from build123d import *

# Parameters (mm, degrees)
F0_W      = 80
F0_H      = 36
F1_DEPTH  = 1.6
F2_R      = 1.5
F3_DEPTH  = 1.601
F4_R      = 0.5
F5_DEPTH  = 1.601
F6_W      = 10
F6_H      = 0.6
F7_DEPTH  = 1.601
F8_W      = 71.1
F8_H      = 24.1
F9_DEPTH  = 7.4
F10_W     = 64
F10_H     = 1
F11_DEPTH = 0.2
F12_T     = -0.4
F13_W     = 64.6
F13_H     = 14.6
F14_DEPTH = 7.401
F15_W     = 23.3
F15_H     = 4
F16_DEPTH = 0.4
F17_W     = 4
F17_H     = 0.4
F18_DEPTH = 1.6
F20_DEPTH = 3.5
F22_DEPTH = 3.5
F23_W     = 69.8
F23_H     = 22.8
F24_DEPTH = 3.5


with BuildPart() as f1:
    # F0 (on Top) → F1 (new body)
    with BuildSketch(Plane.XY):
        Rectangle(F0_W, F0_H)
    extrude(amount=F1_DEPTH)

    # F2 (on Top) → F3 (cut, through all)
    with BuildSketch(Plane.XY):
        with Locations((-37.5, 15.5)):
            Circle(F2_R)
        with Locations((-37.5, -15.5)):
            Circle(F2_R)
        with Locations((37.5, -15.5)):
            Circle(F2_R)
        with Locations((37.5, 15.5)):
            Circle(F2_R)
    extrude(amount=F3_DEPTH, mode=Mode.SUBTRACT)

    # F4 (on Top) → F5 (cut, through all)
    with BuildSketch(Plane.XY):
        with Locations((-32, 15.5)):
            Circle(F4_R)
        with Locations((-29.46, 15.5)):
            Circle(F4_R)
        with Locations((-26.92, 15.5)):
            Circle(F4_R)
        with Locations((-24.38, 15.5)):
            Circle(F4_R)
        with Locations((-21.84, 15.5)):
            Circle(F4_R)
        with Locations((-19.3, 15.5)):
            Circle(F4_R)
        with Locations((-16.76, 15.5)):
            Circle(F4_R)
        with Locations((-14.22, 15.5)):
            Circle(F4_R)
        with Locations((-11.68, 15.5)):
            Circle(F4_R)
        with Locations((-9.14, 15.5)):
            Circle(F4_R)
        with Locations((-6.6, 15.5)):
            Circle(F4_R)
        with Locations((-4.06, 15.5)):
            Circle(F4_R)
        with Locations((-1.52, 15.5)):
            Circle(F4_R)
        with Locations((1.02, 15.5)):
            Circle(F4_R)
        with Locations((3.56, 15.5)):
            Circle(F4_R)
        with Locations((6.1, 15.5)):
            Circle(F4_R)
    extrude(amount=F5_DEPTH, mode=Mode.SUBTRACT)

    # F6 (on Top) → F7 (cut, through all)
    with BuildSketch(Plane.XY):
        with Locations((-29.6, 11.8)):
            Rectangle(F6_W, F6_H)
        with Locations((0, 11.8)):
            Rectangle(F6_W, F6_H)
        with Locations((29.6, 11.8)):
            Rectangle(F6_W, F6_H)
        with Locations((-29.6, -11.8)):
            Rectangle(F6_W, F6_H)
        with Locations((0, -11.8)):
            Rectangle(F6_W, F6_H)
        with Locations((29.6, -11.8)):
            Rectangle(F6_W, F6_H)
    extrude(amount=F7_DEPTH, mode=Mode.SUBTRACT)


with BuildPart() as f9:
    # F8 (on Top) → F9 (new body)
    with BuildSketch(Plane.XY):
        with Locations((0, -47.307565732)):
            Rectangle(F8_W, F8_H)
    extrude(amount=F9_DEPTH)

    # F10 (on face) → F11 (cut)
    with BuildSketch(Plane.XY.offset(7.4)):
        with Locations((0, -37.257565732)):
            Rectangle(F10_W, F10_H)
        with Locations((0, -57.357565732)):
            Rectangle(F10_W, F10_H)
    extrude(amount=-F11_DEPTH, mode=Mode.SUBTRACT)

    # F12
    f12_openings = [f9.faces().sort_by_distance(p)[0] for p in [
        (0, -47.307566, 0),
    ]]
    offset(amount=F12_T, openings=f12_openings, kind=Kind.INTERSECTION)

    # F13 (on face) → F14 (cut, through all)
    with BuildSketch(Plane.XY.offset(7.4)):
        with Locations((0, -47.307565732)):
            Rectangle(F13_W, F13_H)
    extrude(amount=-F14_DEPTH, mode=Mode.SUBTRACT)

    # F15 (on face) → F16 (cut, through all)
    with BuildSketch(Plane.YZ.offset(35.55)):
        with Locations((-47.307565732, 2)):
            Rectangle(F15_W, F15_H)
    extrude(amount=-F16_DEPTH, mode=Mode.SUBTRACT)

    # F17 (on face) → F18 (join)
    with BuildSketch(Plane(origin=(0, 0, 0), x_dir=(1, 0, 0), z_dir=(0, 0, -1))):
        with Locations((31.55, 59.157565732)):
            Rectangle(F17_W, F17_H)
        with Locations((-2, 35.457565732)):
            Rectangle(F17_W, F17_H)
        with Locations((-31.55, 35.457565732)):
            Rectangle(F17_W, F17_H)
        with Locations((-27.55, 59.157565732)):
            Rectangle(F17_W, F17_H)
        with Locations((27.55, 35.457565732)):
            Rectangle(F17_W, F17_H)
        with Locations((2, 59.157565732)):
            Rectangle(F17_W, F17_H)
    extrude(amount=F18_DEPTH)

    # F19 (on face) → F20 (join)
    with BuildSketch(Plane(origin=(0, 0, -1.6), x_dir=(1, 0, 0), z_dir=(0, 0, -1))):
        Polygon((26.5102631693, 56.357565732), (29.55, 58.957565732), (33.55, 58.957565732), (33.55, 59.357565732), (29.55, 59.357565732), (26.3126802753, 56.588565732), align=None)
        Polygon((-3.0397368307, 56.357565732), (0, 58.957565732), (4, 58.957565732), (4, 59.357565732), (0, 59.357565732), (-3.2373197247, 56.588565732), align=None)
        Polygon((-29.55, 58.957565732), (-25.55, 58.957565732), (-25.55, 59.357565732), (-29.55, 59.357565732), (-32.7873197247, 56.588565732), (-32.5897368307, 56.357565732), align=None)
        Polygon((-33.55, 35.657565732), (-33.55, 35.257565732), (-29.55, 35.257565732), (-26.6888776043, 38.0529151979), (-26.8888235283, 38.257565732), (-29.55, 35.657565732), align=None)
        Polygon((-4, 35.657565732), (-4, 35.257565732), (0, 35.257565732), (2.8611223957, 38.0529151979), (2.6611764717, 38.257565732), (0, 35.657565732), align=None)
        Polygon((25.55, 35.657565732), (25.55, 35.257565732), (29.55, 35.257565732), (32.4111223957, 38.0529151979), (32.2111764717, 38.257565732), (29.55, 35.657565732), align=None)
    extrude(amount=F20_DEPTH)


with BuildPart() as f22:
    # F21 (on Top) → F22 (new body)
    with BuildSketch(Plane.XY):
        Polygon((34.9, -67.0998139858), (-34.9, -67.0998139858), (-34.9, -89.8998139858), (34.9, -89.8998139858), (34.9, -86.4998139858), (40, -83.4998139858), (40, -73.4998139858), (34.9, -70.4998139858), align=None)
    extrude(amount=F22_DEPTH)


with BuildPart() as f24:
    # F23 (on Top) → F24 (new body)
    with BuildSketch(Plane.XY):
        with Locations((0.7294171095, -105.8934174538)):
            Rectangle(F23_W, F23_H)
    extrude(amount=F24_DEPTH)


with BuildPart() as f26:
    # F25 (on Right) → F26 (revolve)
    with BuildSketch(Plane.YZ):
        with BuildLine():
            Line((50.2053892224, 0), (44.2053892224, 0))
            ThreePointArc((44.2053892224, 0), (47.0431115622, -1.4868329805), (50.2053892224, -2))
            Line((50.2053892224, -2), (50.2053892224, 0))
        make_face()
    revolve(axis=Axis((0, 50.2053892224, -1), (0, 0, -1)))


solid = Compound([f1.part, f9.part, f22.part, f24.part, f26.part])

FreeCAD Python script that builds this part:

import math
import FreeCAD as App
import Part
import Sketcher
from FreeCAD import Vector


def faces_at(feature, points):
    """Names of the faces that lie closest to the given points."""
    faces = feature.Shape.Faces
    near = lambda p: min(range(len(faces)), key=lambda i: faces[i].distToShape(Part.Vertex(*p))[0])
    return sorted({f"Face{near(p) + 1}" for p in points})

doc = App.newDocument("Part")
body = doc.addObject("PartDesign::Body", "Body")

# Sketch on XY plane
sketch1 = doc.addObject("Sketcher::SketchObject", "Sketch")
body.addObject(sketch1)
sketch1.AttachmentSupport = (doc.XY_Plane, [""])
sketch1.MapMode = "FlatFace"
sketch1.addGeometry([
    Part.LineSegment(Vector(-40, 18, 0), Vector(-40, -18, 0)),
    Part.LineSegment(Vector(-40, -18, 0), Vector(40, -18, 0)),
    Part.LineSegment(Vector(40, -18, 0), Vector(40, 18, 0)),
    Part.LineSegment(Vector(40, 18, 0), Vector(-40, 18, 0)),
], False)
sketch1.addConstraint([
    Sketcher.Constraint("Coincident", 0, 2, 1, 1),
    Sketcher.Constraint("Coincident", 1, 2, 2, 1),
    Sketcher.Constraint("Coincident", 2, 2, 3, 1),
    Sketcher.Constraint("Coincident", 3, 2, 0, 1),
    Sketcher.Constraint("Vertical", 0),
    Sketcher.Constraint("Horizontal", 1),
    Sketcher.Constraint("Vertical", 2),
    Sketcher.Constraint("Horizontal", 3),
    Sketcher.Constraint("Symmetric", 0, 2, 2, 2, -1, 1),
    Sketcher.Constraint("DistanceX", 1, 1, 1, 2, 80.0),
    Sketcher.Constraint("DistanceY", 0, 2, 0, 1, 36.0),
])
pad1 = doc.addObject("PartDesign::Pad", "Pad")
body.addObject(pad1)
pad1.Profile = sketch1
pad1.Length = 1.6

# Sketch on XY plane
sketch2 = doc.addObject("Sketcher::SketchObject", "Sketch001")
body.addObject(sketch2)
sketch2.AttachmentSupport = (doc.XY_Plane, [""])
sketch2.MapMode = "FlatFace"
sketch2.addGeometry([
    Part.Circle(Vector(-37.5, 15.5, 0), Vector(0, 0, 1), 1.5),
    Part.Circle(Vector(-37.5, -15.5, 0), Vector(0, 0, 1), 1.5),
    Part.Circle(Vector(37.5, -15.5, 0), Vector(0, 0, 1), 1.5),
    Part.Circle(Vector(37.5, 15.5, 0), Vector(0, 0, 1), 1.5),
], False)
sketch2.addConstraint([
    Sketcher.Constraint("Equal", 0, 1),
    Sketcher.Constraint("Equal", 1, 2),
    Sketcher.Constraint("Equal", 2, 3),
    Sketcher.Constraint("Symmetric", 0, 3, 2, 3, -1, 1),
    Sketcher.Constraint("Symmetric", 1, 3, 3, 3, -1, 1),
    Sketcher.Constraint("Symmetric", 1, 3, 2, 3, -2),
    Sketcher.Constraint("Diameter", 0, 3.0),
    Sketcher.Constraint("DistanceY", 1, 3, 0, 3, 31.0),
    Sketcher.Constraint("DistanceX", 1, 3, 2, 3, 75.0),
])
pocket1 = doc.addObject("PartDesign::Pocket", "Pocket")
body.addObject(pocket1)
pocket1.Profile = sketch2
pocket1.Type = "ThroughAll"
pocket1.Reversed = True

# Sketch on XY plane
sketch3 = doc.addObject("Sketcher::SketchObject", "Sketch002")
body.addObject(sketch3)
sketch3.AttachmentSupport = (doc.XY_Plane, [""])
sketch3.MapMode = "FlatFace"
sketch3.addGeometry([
    Part.Circle(Vector(-32, 15.5, 0), Vector(0, 0, 1), 0.5),  # 0
    Part.Circle(Vector(-29.46, 15.5, 0), Vector(0, 0, 1), 0.5),  # 1
    Part.Circle(Vector(-26.92, 15.5, 0), Vector(0, 0, 1), 0.5),  # 2
    Part.Circle(Vector(-24.38, 15.5, 0), Vector(0, 0, 1), 0.5),  # 3
    Part.Circle(Vector(-21.84, 15.5, 0), Vector(0, 0, 1), 0.5),  # 4
    Part.Circle(Vector(-19.3, 15.5, 0), Vector(0, 0, 1), 0.5),  # 5
    Part.Circle(Vector(-16.76, 15.5, 0), Vector(0, 0, 1), 0.5),  # 6
    Part.Circle(Vector(-14.22, 15.5, 0), Vector(0, 0, 1), 0.5),  # 7
    Part.Circle(Vector(-11.68, 15.5, 0), Vector(0, 0, 1), 0.5),  # 8
    Part.Circle(Vector(-9.14, 15.5, 0), Vector(0, 0, 1), 0.5),  # 9
    Part.Circle(Vector(-6.6, 15.5, 0), Vector(0, 0, 1), 0.5),  # 10
    Part.Circle(Vector(-4.06, 15.5, 0), Vector(0, 0, 1), 0.5),  # 11
    Part.Circle(Vector(-1.52, 15.5, 0), Vector(0, 0, 1), 0.5),  # 12
    Part.Circle(Vector(1.02, 15.5, 0), Vector(0, 0, 1), 0.5),  # 13
    Part.Circle(Vector(3.56, 15.5, 0), Vector(0, 0, 1), 0.5),  # 14
    Part.Circle(Vector(6.1, 15.5, 0), Vector(0, 0, 1), 0.5),  # 15
], False)
sketch3.addConstraint([
    Sketcher.Constraint("Equal", 0, 1),
    Sketcher.Constraint("Equal", 1, 2),
    Sketcher.Constraint("Equal", 2, 3),
    Sketcher.Constraint("Equal", 3, 4),
    Sketcher.Constraint("Equal", 4, 5),
    Sketcher.Constraint("Equal", 5, 6),
    Sketcher.Constraint("Equal", 6, 7),
    Sketcher.Constraint("Equal", 7, 8),
    Sketcher.Constraint("Equal", 8, 9),
    Sketcher.Constraint("Equal", 9, 10),
    Sketcher.Constraint("Equal", 10, 11),
    Sketcher.Constraint("Equal", 11, 12),
    Sketcher.Constraint("Equal", 12, 13),
    Sketcher.Constraint("Equal", 13, 14),
    Sketcher.Constraint("Equal", 14, 15),
    Sketcher.Constraint("Horizontal", 0, 3, 1, 3),
    Sketcher.Constraint("Horizontal", 1, 3, 2, 3),
    Sketcher.Constraint("Horizontal", 2, 3, 3, 3),
    Sketcher.Constraint("Horizontal", 3, 3, 4, 3),
    Sketcher.Constraint("Horizontal", 4, 3, 5, 3),
    Sketcher.Constraint("Horizontal", 5, 3, 6, 3),
    Sketcher.Constraint("Horizontal", 6, 3, 7, 3),
    Sketcher.Constraint("Horizontal", 7, 3, 8, 3),
    Sketcher.Constraint("Horizontal", 8, 3, 9, 3),
    Sketcher.Constraint("Horizontal", 9, 3, 10, 3),
    Sketcher.Constraint("Horizontal", 10, 3, 11, 3),
    Sketcher.Constraint("Horizontal", 11, 3, 12, 3),
    Sketcher.Constraint("Horizontal", 12, 3, 13, 3),
    Sketcher.Constraint("Horizontal", 13, 3, 14, 3),
    Sketcher.Constraint("Horizontal", 14, 3, 15, 3),
    Sketcher.Constraint("Diameter", 0, 1.0),
    Sketcher.Constraint("DistanceX", 0, 3, -1, 1, 32.0),
    Sketcher.Constraint("DistanceY", -1, 1, 0, 3, 15.5),
    Sketcher.Constraint("DistanceX", 5, 3, -1, 1, 19.3),
    Sketcher.Constraint("DistanceX", 10, 3, -1, 1, 6.6),
    Sketcher.Constraint("DistanceX", -1, 1, 15, 3, 6.1),
    Sketcher.Constraint("DistanceX", 1, 3, 6, 3, 12.7),
    Sketcher.Constraint("DistanceX", 2, 3, 7, 3, 12.7),
    Sketcher.Constraint("DistanceX", 3, 3, 8, 3, 12.7),
    Sketcher.Constraint("DistanceX", 4, 3, 9, 3, 12.7),
    Sketcher.Constraint("DistanceX", 6, 3, 11, 3, 12.7),
    Sketcher.Constraint("DistanceX", 7, 3, 12, 3, 12.7),
    Sketcher.Constraint("DistanceX", 8, 3, 13, 3, 12.7),
    Sketcher.Constraint("DistanceX", 9, 3, 14, 3, 12.7),
    Sketcher.Constraint("DistanceX", 1, 3, -1, 1, 29.46),
    Sketcher.Constraint("DistanceX", 2, 3, -1, 1, 26.92),
    Sketcher.Constraint("DistanceX", 3, 3, -1, 1, 24.38),
    Sketcher.Constraint("DistanceX", 4, 3, -1, 1, 21.84),
])
pocket2 = doc.addObject("PartDesign::Pocket", "Pocket001")
body.addObject(pocket2)
pocket2.Profile = sketch3
pocket2.Type = "ThroughAll"
pocket2.Reversed = True

# Sketch on XY plane
sketch4 = doc.addObject("Sketcher::SketchObject", "Sketch003")
body.addObject(sketch4)
sketch4.AttachmentSupport = (doc.XY_Plane, [""])
sketch4.MapMode = "FlatFace"
sketch4.addGeometry([
    Part.LineSegment(Vector(-34.6, 12.1, 0), Vector(-34.6, 11.5, 0)),  # 0
    Part.LineSegment(Vector(-34.6, 11.5, 0), Vector(-24.6, 11.5, 0)),  # 1
    Part.LineSegment(Vector(-24.6, 11.5, 0), Vector(-24.6, 12.1, 0)),  # 2
    Part.LineSegment(Vector(-24.6, 12.1, 0), Vector(-34.6, 12.1, 0)),  # 3
    Part.LineSegment(Vector(-5, 12.1, 0), Vector(-5, 11.5, 0)),  # 4
    Part.LineSegment(Vector(-5, 11.5, 0), Vector(5, 11.5, 0)),  # 5
    Part.LineSegment(Vector(5, 11.5, 0), Vector(5, 12.1, 0)),  # 6
    Part.LineSegment(Vector(5, 12.1, 0), Vector(-5, 12.1, 0)),  # 7
    Part.LineSegment(Vector(24.6, 12.1, 0), Vector(24.6, 11.5, 0)),  # 8
    Part.LineSegment(Vector(24.6, 11.5, 0), Vector(34.6, 11.5, 0)),  # 9
    Part.LineSegment(Vector(34.6, 11.5, 0), Vector(34.6, 12.1, 0)),  # 10
    Part.LineSegment(Vector(34.6, 12.1, 0), Vector(24.6, 12.1, 0)),  # 11
    Part.LineSegment(Vector(-34.6, -11.5, 0), Vector(-34.6, -12.1, 0)),  # 12
    Part.LineSegment(Vector(-34.6, -12.1, 0), Vector(-24.6, -12.1, 0)),  # 13
    Part.LineSegment(Vector(-24.6, -12.1, 0), Vector(-24.6, -11.5, 0)),  # 14
    Part.LineSegment(Vector(-24.6, -11.5, 0), Vector(-34.6, -11.5, 0)),  # 15
    Part.LineSegment(Vector(-5, -11.5, 0), Vector(-5, -12.1, 0)),  # 16
    Part.LineSegment(Vector(-5, -12.1, 0), Vector(5, -12.1, 0)),  # 17
    Part.LineSegment(Vector(5, -12.1, 0), Vector(5, -11.5, 0)),  # 18
    Part.LineSegment(Vector(5, -11.5, 0), Vector(-5, -11.5, 0)),  # 19
    Part.LineSegment(Vector(24.6, -11.5, 0), Vector(24.6, -12.1, 0)),  # 20
    Part.LineSegment(Vector(24.6, -12.1, 0), Vector(34.6, -12.1, 0)),  # 21
    Part.LineSegment(Vector(34.6, -12.1, 0), Vector(34.6, -11.5, 0)),  # 22
    Part.LineSegment(Vector(34.6, -11.5, 0), Vector(24.6, -11.5, 0)),  # 23
], False)
sketch4.addConstraint([
    Sketcher.Constraint("Coincident", 0, 2, 1, 1),
    Sketcher.Constraint("Coincident", 1, 2, 2, 1),
    Sketcher.Constraint("Coincident", 2, 2, 3, 1),
    Sketcher.Constraint("Coincident", 3, 2, 0, 1),
    Sketcher.Constraint("Coincident", 4, 2, 5, 1),
    Sketcher.Constraint("Coincident", 5, 2, 6, 1),
    Sketcher.Constraint("Coincident", 6, 2, 7, 1),
    Sketcher.Constraint("Coincident", 7, 2, 4, 1),
    Sketcher.Constraint("Coincident", 8, 2, 9, 1),
    Sketcher.Constraint("Coincident", 9, 2, 10, 1),
    Sketcher.Constraint("Coincident", 10, 2, 11, 1),
    Sketcher.Constraint("Coincident", 11, 2, 8, 1),
    Sketcher.Constraint("Coincident", 12, 2, 13, 1),
    Sketcher.Constraint("Coincident", 13, 2, 14, 1),
    Sketcher.Constraint("Coincident", 14, 2, 15, 1),
    Sketcher.Constraint("Coincident", 15, 2, 12, 1),
    Sketcher.Constraint("Coincident", 16, 2, 17, 1),
    Sketcher.Constraint("Coincident", 17, 2, 18, 1),
    Sketcher.Constraint("Coincident", 18, 2, 19, 1),
    Sketcher.Constraint("Coincident", 19, 2, 16, 1),
    Sketcher.Constraint("Coincident", 20, 2, 21, 1),
    Sketcher.Constraint("Coincident", 21, 2, 22, 1),
    Sketcher.Constraint("Coincident", 22, 2, 23, 1),
    Sketcher.Constraint("Coincident", 23, 2, 20, 1),
    Sketcher.Constraint("Vertical", 0),
    Sketcher.Constraint("Horizontal", 1),
    Sketcher.Constraint("Vertical", 2),
    Sketcher.Constraint("Horizontal", 3),
    Sketcher.Constraint("Vertical", 4),
    Sketcher.Constraint("Horizontal", 5),
    Sketcher.Constraint("Vertical", 6),
    Sketcher.Constraint("Horizontal", 7),
    Sketcher.Constraint("Vertical", 8),
    Sketcher.Constraint("Horizontal", 9),
    Sketcher.Constraint("Vertical", 10),
    Sketcher.Constraint("Horizontal", 11),
    Sketcher.Constraint("Vertical", 12),
    Sketcher.Constraint("Horizontal", 13),
    Sketcher.Constraint("Vertical", 14),
    Sketcher.Constraint("Horizontal", 15),
    Sketcher.Constraint("Vertical", 16),
    Sketcher.Constraint("Horizontal", 17),
    Sketcher.Constraint("Vertical", 18),
    Sketcher.Constraint("Horizontal", 19),
    Sketcher.Constraint("Vertical", 20),
    Sketcher.Constraint("Horizontal", 21),
    Sketcher.Constraint("Vertical", 22),
    Sketcher.Constraint("Horizontal", 23),
    Sketcher.Constraint("Symmetric", 10, 2, 12, 2, -1, 1),
    Sketcher.Constraint("Symmetric", 8, 2, 14, 2, -1, 1),
    Sketcher.Constraint("Symmetric", 6, 2, 16, 2, -1, 1),
    Sketcher.Constraint("Symmetric", 4, 2, 18, 2, -1, 1),
    Sketcher.Constraint("Symmetric", 2, 2, 20, 2, -1, 1),
    Sketcher.Constraint("Symmetric", 0, 2, 22, 2, -1, 1),
    Sketcher.Constraint("Symmetric", 1, 2, 8, 2, -2),
    Sketcher.Constraint("Symmetric", 3, 2, 10, 2, -2),
    Sketcher.Constraint("Horizontal", 1, 2, 4, 2),
    Sketcher.Constraint("Horizontal", 3, 2, 6, 2),
    Sketcher.Constraint("Vertical", 7, 2, 16, 2),
    Sketcher.Constraint("Equal", 3, 5),
    Sketcher.Constraint("DistanceX", 1, 1, 1, 2, 10.0),
    Sketcher.Constraint("DistanceY", 0, 2, 0, 1, 0.6),
    Sketcher.Constraint("DistanceY", 14, 2, 1, 2, 23.0),
    Sketcher.Constraint("DistanceX", 0, 2, -1, 1, 34.6),
])
pocket3 = doc.addObject("PartDesign::Pocket", "Pocket002")
body.addObject(pocket3)
pocket3.Profile = sketch4
pocket3.Type = "ThroughAll"
pocket3.Reversed = True
body2 = doc.addObject("PartDesign::Body", "Body001")

# Sketch on XY plane
sketch5 = doc.addObject("Sketcher::SketchObject", "Sketch004")
body2.addObject(sketch5)
sketch5.AttachmentSupport = (doc.getObject("XY_Plane001"), [""])
sketch5.MapMode = "FlatFace"
sketch5.addGeometry([
    Part.LineSegment(Vector(-35.55, -35.257566, 0), Vector(-35.55, -59.357566, 0)),
    Part.LineSegment(Vector(-35.55, -59.357566, 0), Vector(35.55, -59.357566, 0)),
    Part.LineSegment(Vector(35.55, -59.357566, 0), Vector(35.55, -35.257566, 0)),
    Part.LineSegment(Vector(35.55, -35.257566, 0), Vector(-35.55, -35.257566, 0)),
], False)
sketch5.addConstraint([
    Sketcher.Constraint("Coincident", 0, 2, 1, 1),
    Sketcher.Constraint("Coincident", 1, 2, 2, 1),
    Sketcher.Constraint("Coincident", 2, 2, 3, 1),
    Sketcher.Constraint("Coincident", 3, 2, 0, 1),
    Sketcher.Constraint("Vertical", 0),
    Sketcher.Constraint("Horizontal", 1),
    Sketcher.Constraint("Vertical", 2),
    Sketcher.Constraint("Horizontal", 3),
    Sketcher.Constraint("DistanceX", 1, 1, 1, 2, 71.1),
    Sketcher.Constraint("DistanceY", 0, 2, 0, 1, 24.1),
    Sketcher.Constraint("DistanceX", 0, 2, -1, 1, 35.55),
    Sketcher.Constraint("DistanceY", 0, 2, -1, 1, 59.357566),
])
pad2 = doc.addObject("PartDesign::Pad", "Pad001")
body2.addObject(pad2)
pad2.Profile = sketch5
pad2.Length = 7.4

# Sketch on XY plane
sketch6 = doc.addObject("Sketcher::SketchObject", "Sketch005")
body2.addObject(sketch6)
sketch6.AttachmentSupport = (doc.getObject("XY_Plane001"), [""])
sketch6.MapMode = "FlatFace"
sketch6.AttachmentOffset = App.Placement(Vector(0, 0, 7.4), App.Rotation())
sketch6.addGeometry([
    Part.LineSegment(Vector(-32, -36.757566, 0), Vector(-32, -37.757566, 0)),  # 0
    Part.LineSegment(Vector(-32, -37.757566, 0), Vector(32, -37.757566, 0)),  # 1
    Part.LineSegment(Vector(32, -37.757566, 0), Vector(32, -36.757566, 0)),  # 2
    Part.LineSegment(Vector(32, -36.757566, 0), Vector(-32, -36.757566, 0)),  # 3
    Part.LineSegment(Vector(-32, -56.857566, 0), Vector(-32, -57.857566, 0)),  # 4
    Part.LineSegment(Vector(-32, -57.857566, 0), Vector(32, -57.857566, 0)),  # 5
    Part.LineSegment(Vector(32, -57.857566, 0), Vector(32, -56.857566, 0)),  # 6
    Part.LineSegment(Vector(32, -56.857566, 0), Vector(-32, -56.857566, 0)),  # 7
], False)
sketch6.addConstraint([
    Sketcher.Constraint("Coincident", 0, 2, 1, 1),
    Sketcher.Constraint("Coincident", 1, 2, 2, 1),
    Sketcher.Constraint("Coincident", 2, 2, 3, 1),
    Sketcher.Constraint("Coincident", 3, 2, 0, 1),
    Sketcher.Constraint("Coincident", 4, 2, 5, 1),
    Sketcher.Constraint("Coincident", 5, 2, 6, 1),
    Sketcher.Constraint("Coincident", 6, 2, 7, 1),
    Sketcher.Constraint("Coincident", 7, 2, 4, 1),
    Sketcher.Constraint("Vertical", 0),
    Sketcher.Constraint("Horizontal", 1),
    Sketcher.Constraint("Vertical", 2),
    Sketcher.Constraint("Horizontal", 3),
    Sketcher.Constraint("Vertical", 4),
    Sketcher.Constraint("Horizontal", 5),
    Sketcher.Constraint("Vertical", 6),
    Sketcher.Constraint("Horizontal", 7),
    Sketcher.Constraint("Vertical", 3, 2, 4, 2),
    Sketcher.Constraint("Vertical", 2, 2, 5, 2),
    Sketcher.Constraint("Equal", 2, 4),
    Sketcher.Constraint("DistanceX", 1, 1, 1, 2, 64.0),
    Sketcher.Constraint("DistanceY", 0, 2, 0, 1, 1.0),
    Sketcher.Constraint("DistanceX", 0, 2, -1, 1, 32.0),
    Sketcher.Constraint("DistanceY", 4, 2, 0, 2, 20.1),
    Sketcher.Constraint("DistanceY", 0, 2, -1, 1, 37.757566),
])
pocket4 = doc.addObject("PartDesign::Pocket", "Pocket003")
body2.addObject(pocket4)
pocket4.Profile = sketch6
pocket4.Length = 0.2
doc.recompute()

thickness = doc.addObject("PartDesign::Thickness", "Thickness")
body2.addObject(thickness)
thickness.Base = (pocket4, faces_at(pocket4, [(0, -47.308, 0)]))
thickness.Value = 0.4
thickness.Reversed = True
thickness.Join = "Intersection"

# Sketch on XY plane
sketch7 = doc.addObject("Sketcher::SketchObject", "Sketch006")
body2.addObject(sketch7)
sketch7.AttachmentSupport = (doc.getObject("XY_Plane001"), [""])
sketch7.MapMode = "FlatFace"
sketch7.AttachmentOffset = App.Placement(Vector(0, 0, 7.4), App.Rotation())
sketch7.addGeometry([
    Part.LineSegment(Vector(-32.3, -40.007566, 0), Vector(-32.3, -54.607566, 0)),
    Part.LineSegment(Vector(-32.3, -54.607566, 0), Vector(32.3, -54.607566, 0)),
    Part.LineSegment(Vector(32.3, -54.607566, 0), Vector(32.3, -40.007566, 0)),
    Part.LineSegment(Vector(32.3, -40.007566, 0), Vector(-32.3, -40.007566, 0)),
], False)
sketch7.addConstraint([
    Sketcher.Constraint("Coincident", 0, 2, 1, 1),
    Sketcher.Constraint("Coincident", 1, 2, 2, 1),
    Sketcher.Constraint("Coincident", 2, 2, 3, 1),
    Sketcher.Constraint("Coincident", 3, 2, 0, 1),
    Sketcher.Constraint("Vertical", 0),
    Sketcher.Constraint("Horizontal", 1),
    Sketcher.Constraint("Vertical", 2),
    Sketcher.Constraint("Horizontal", 3),
    Sketcher.Constraint("DistanceX", 1, 1, 1, 2, 64.6),
    Sketcher.Constraint("DistanceY", 0, 2, 0, 1, 14.6),
    Sketcher.Constraint("DistanceX", 0, 2, -1, 1, 32.3),
    Sketcher.Constraint("DistanceY", 0, 2, -1, 1, 54.607566),
])
pocket5 = doc.addObject("PartDesign::Pocket", "Pocket004")
body2.addObject(pocket5)
pocket5.Profile = sketch7
pocket5.Type = "ThroughAll"

# Sketch on YZ plane
sketch8 = doc.addObject("Sketcher::SketchObject", "Sketch007")
body2.addObject(sketch8)
sketch8.AttachmentSupport = (doc.getObject("YZ_Plane001"), [""])
sketch8.MapMode = "FlatFace"
sketch8.AttachmentOffset = App.Placement(Vector(0, 0, 35.55), App.Rotation())
sketch8.addGeometry([
    Part.LineSegment(Vector(-58.957566, 4, 0), Vector(-58.957566, 0, 0)),
    Part.LineSegment(Vector(-58.957566, 0, 0), Vector(-35.657566, 0, 0)),
    Part.LineSegment(Vector(-35.657566, 0, 0), Vector(-35.657566, 4, 0)),
    Part.LineSegment(Vector(-35.657566, 4, 0), Vector(-58.957566, 4, 0)),
], False)
sketch8.addConstraint([
    Sketcher.Constraint("Coincident", 0, 2, 1, 1),
    Sketcher.Constraint("Coincident", 1, 2, 2, 1),
    Sketcher.Constraint("Coincident", 2, 2, 3, 1),
    Sketcher.Constraint("Coincident", 3, 2, 0, 1),
    Sketcher.Constraint("Vertical", 0),
    Sketcher.Constraint("Horizontal", 1),
    Sketcher.Constraint("Vertical", 2),
    Sketcher.Constraint("Horizontal", 3),
    Sketcher.Constraint("PointOnObject", 0, 2, -1),
    Sketcher.Constraint("DistanceY", 0, 2, 0, 1, 4.0),
    Sketcher.Constraint("DistanceX", 1, 1, 1, 2, 23.3),
    Sketcher.Constraint("DistanceX", 0, 2, -1, 1, 58.957566),
])
pocket6 = doc.addObject("PartDesign::Pocket", "Pocket005")
body2.addObject(pocket6)
pocket6.Profile = sketch8
pocket6.Length = 0.4

# Sketch on XY plane
sketch9 = doc.addObject("Sketcher::SketchObject", "Sketch008")
body2.addObject(sketch9)
sketch9.AttachmentSupport = (doc.getObject("XY_Plane001"), [""])
sketch9.MapMode = "FlatFace"
sketch9.addGeometry([
    Part.LineSegment(Vector(29.55, -59.357566, 0), Vector(29.55, -58.957566, 0)),  # 0
    Part.LineSegment(Vector(29.55, -58.957566, 0), Vector(33.55, -58.957566, 0)),  # 1
    Part.LineSegment(Vector(33.55, -58.957566, 0), Vector(33.55, -59.357566, 0)),  # 2
    Part.LineSegment(Vector(33.55, -59.357566, 0), Vector(29.55, -59.357566, 0)),  # 3
    Part.LineSegment(Vector(-4, -35.657566, 0), Vector(-4, -35.257566, 0)),  # 4
    Part.LineSegment(Vector(-4, -35.257566, 0), Vector(0, -35.257566, 0)),  # 5
    Part.LineSegment(Vector(0, -35.257566, 0), Vector(0, -35.657566, 0)),  # 6
    Part.LineSegment(Vector(0, -35.657566, 0), Vector(-4, -35.657566, 0)),  # 7
    Part.LineSegment(Vector(-33.55, -35.657566, 0), Vector(-33.55, -35.257566, 0)),  # 8
    Part.LineSegment(Vector(-33.55, -35.257566, 0), Vector(-29.55, -35.257566, 0)),  # 9
    Part.LineSegment(Vector(-29.55, -35.257566, 0), Vector(-29.55, -35.657566, 0)),  # 10
    Part.LineSegment(Vector(-29.55, -35.657566, 0), Vector(-33.55, -35.657566, 0)),  # 11
    Part.LineSegment(Vector(-29.55, -59.357566, 0), Vector(-29.55, -58.957566, 0)),  # 12
    Part.LineSegment(Vector(-29.55, -58.957566, 0), Vector(-25.55, -58.957566, 0)),  # 13
    Part.LineSegment(Vector(-25.55, -58.957566, 0), Vector(-25.55, -59.357566, 0)),  # 14
    Part.LineSegment(Vector(-25.55, -59.357566, 0), Vector(-29.55, -59.357566, 0)),  # 15
    Part.LineSegment(Vector(25.55, -35.657566, 0), Vector(25.55, -35.257566, 0)),  # 16
    Part.LineSegment(Vector(25.55, -35.257566, 0), Vector(29.55, -35.257566, 0)),  # 17
    Part.LineSegment(Vector(29.55, -35.257566, 0), Vector(29.55, -35.657566, 0)),  # 18
    Part.LineSegment(Vector(29.55, -35.657566, 0), Vector(25.55, -35.657566, 0)),  # 19
    Part.LineSegment(Vector(0, -59.357566, 0), Vector(0, -58.957566, 0)),  # 20
    Part.LineSegment(Vector(0, -58.957566, 0), Vector(4, -58.957566, 0)),  # 21
    Part.LineSegment(Vector(4, -58.957566, 0), Vector(4, -59.357566, 0)),  # 22
    Part.LineSegment(Vector(4, -59.357566, 0), Vector(0, -59.357566, 0)),  # 23
], False)
sketch9.addConstraint([
    Sketcher.Constraint("Coincident", 0, 2, 1, 1),
    Sketcher.Constraint("Coincident", 1, 2, 2, 1),
    Sketcher.Constraint("Coincident", 2, 2, 3, 1),
    Sketcher.Constraint("Coincident", 3, 2, 0, 1),
    Sketcher.Constraint("Coincident", 4, 2, 5, 1),
    Sketcher.Constraint("Coincident", 5, 2, 6, 1),
    Sketcher.Constraint("Coincident", 6, 2, 7, 1),
    Sketcher.Constraint("Coincident", 7, 2, 4, 1),
    Sketcher.Constraint("Coincident", 8, 2, 9, 1),
    Sketcher.Constraint("Coincident", 9, 2, 10, 1),
    Sketcher.Constraint("Coincident", 10, 2, 11, 1),
    Sketcher.Constraint("Coincident", 11, 2, 8, 1),
    Sketcher.Constraint("Coincident", 12, 2, 13, 1),
    Sketcher.Constraint("Coincident", 13, 2, 14, 1),
    Sketcher.Constraint("Coincident", 14, 2, 15, 1),
    Sketcher.Constraint("Coincident", 15, 2, 12, 1),
    Sketcher.Constraint("Coincident", 16, 2, 17, 1),
    Sketcher.Constraint("Coincident", 17, 2, 18, 1),
    Sketcher.Constraint("Coincident", 18, 2, 19, 1),
    Sketcher.Constraint("Coincident", 19, 2, 16, 1),
    Sketcher.Constraint("Coincident", 20, 2, 21, 1),
    Sketcher.Constraint("Coincident", 21, 2, 22, 1),
    Sketcher.Constraint("Coincident", 22, 2, 23, 1),
    Sketcher.Constraint("Coincident", 23, 2, 20, 1),
    Sketcher.Constraint("Vertical", 0),
    Sketcher.Constraint("Horizontal", 1),
    Sketcher.Constraint("Vertical", 2),
    Sketcher.Constraint("Horizontal", 3),
    Sketcher.Constraint("Vertical", 4),
    Sketcher.Constraint("Horizontal", 5),
    Sketcher.Constraint("Vertical", 6),
    Sketcher.Constraint("Horizontal", 7),
    Sketcher.Constraint("Vertical", 8),
    Sketcher.Constraint("Horizontal", 9),
    Sketcher.Constraint("Vertical", 10),
    Sketcher.Constraint("Horizontal", 11),
    Sketcher.Constraint("Vertical", 12),
    Sketcher.Constraint("Horizontal", 13),
    Sketcher.Constraint("Vertical", 14),
    Sketcher.Constraint("Horizontal", 15),
    Sketcher.Constraint("Vertical", 16),
    Sketcher.Constraint("Horizontal", 17),
    Sketcher.Constraint("Vertical", 18),
    Sketcher.Constraint("Horizontal", 19),
    Sketcher.Constraint("Vertical", 20),
    Sketcher.Constraint("Horizontal", 21),
    Sketcher.Constraint("Vertical", 22),
    Sketcher.Constraint("Horizontal", 23),
    Sketcher.Constraint("Symmetric", 0, 2, 12, 2, -2),
    Sketcher.Constraint("Symmetric", 9, 2, 17, 2, -2),
    Sketcher.Constraint("PointOnObject", 5, 2, -2),
    Sketcher.Constraint("PointOnObject", 20, 2, -2),
    Sketcher.Constraint("Horizontal", 5, 2, 8, 2),
    Sketcher.Constraint("Horizontal", 7, 2, 10, 2),
    Sketcher.Constraint("Horizontal", 3, 2, 14, 2),
    Sketcher.Constraint("Horizontal", 11, 2, 18, 2),
    Sketcher.Constraint("Horizontal", 13, 2, 20, 2),
    Sketcher.Constraint("Horizontal", 15, 2, 22, 2),
    Sketcher.Constraint("Vertical", 10, 2, 12, 2),
    Sketcher.Constraint("Equal", 3, 5),
    Sketcher.Constraint("Equal", 7, 9),
    Sketcher.Constraint("Equal", 11, 13),
    Sketcher.Constraint("Equal", 15, 17),
    Sketcher.Constraint("Equal", 19, 21),
    Sketcher.Constraint("Equal", 2, 4),
    Sketcher.Constraint("DistanceX", 1, 1, 1, 2, 4.0),
    Sketcher.Constraint("DistanceY", 0, 1, 0, 2, 0.4),
    Sketcher.Constraint("DistanceY", 0, 2, 4, 2, 23.7),
    Sketcher.Constraint("DistanceX", 8, 2, 0, 2, 63.1),
    Sketcher.Constraint("DistanceY", 0, 2, -1, 1, 58.957566),
])
pad3 = doc.addObject("PartDesign::Pad", "Pad002")
body2.addObject(pad3)
pad3.Profile = sketch9
pad3.Length = 1.6
pad3.Reversed = True

# Sketch on XY plane
sketch10 = doc.addObject("Sketcher::SketchObject", "Sketch009")
body2.addObject(sketch10)
sketch10.AttachmentSupport = (doc.getObject("XY_Plane001"), [""])
sketch10.MapMode = "FlatFace"
sketch10.AttachmentOffset = App.Placement(Vector(0, 0, -1.6), App.Rotation())
sketch10.addGeometry([
    Part.LineSegment(Vector(26.510263, -56.357566, 0), Vector(29.55, -58.957566, 0)),  # 0
    Part.LineSegment(Vector(29.55, -58.957566, 0), Vector(33.55, -58.957566, 0)),  # 1
    Part.LineSegment(Vector(33.55, -58.957566, 0), Vector(33.55, -59.357566, 0)),  # 2
    Part.LineSegment(Vector(33.55, -59.357566, 0), Vector(29.55, -59.357566, 0)),  # 3
    Part.LineSegment(Vector(29.55, -59.357566, 0), Vector(26.31268, -56.588566, 0)),  # 4
    Part.LineSegment(Vector(26.31268, -56.588566, 0), Vector(26.510263, -56.357566, 0)),  # 5
    Part.LineSegment(Vector(-3.039737, -56.357566, 0), Vector(0, -58.957566, 0)),  # 6
    Part.LineSegment(Vector(0, -58.957566, 0), Vector(4, -58.957566, 0)),  # 7
    Part.LineSegment(Vector(4, -58.957566, 0), Vector(4, -59.357566, 0)),  # 8
    Part.LineSegment(Vector(4, -59.357566, 0), Vector(0, -59.357566, 0)),  # 9
    Part.LineSegment(Vector(0, -59.357566, 0), Vector(-3.23732, -56.588566, 0)),  # 10
    Part.LineSegment(Vector(-3.23732, -56.588566, 0), Vector(-3.039737, -56.357566, 0)),  # 11
    Part.LineSegment(Vector(-29.55, -58.957566, 0), Vector(-25.55, -58.957566, 0)),  # 12
    Part.LineSegment(Vector(-25.55, -58.957566, 0), Vector(-25.55, -59.357566, 0)),  # 13
    Part.LineSegment(Vector(-25.55, -59.357566, 0), Vector(-29.55, -59.357566, 0)),  # 14
    Part.LineSegment(Vector(-29.55, -59.357566, 0), Vector(-32.78732, -56.588566, 0)),  # 15
    Part.LineSegment(Vector(-32.78732, -56.588566, 0), Vector(-32.589737, -56.357566, 0)),  # 16
    Part.LineSegment(Vector(-32.589737, -56.357566, 0), Vector(-29.55, -58.957566, 0)),  # 17
    Part.LineSegment(Vector(-33.55, -35.657566, 0), Vector(-33.55, -35.257566, 0)),  # 18
    Part.LineSegment(Vector(-33.55, -35.257566, 0), Vector(-29.55, -35.257566, 0)),  # 19
    Part.LineSegment(Vector(-29.55, -35.257566, 0), Vector(-26.688878, -38.052915, 0)),  # 20
    Part.LineSegment(Vector(-26.688878, -38.052915, 0), Vector(-26.888824, -38.257566, 0)),  # 21
    Part.LineSegment(Vector(-26.888824, -38.257566, 0), Vector(-29.55, -35.657566, 0)),  # 22
    Part.LineSegment(Vector(-29.55, -35.657566, 0), Vector(-33.55, -35.657566, 0)),  # 23
    Part.LineSegment(Vector(-4, -35.657566, 0), Vector(-4, -35.257566, 0)),  # 24
    Part.LineSegment(Vector(-4, -35.257566, 0), Vector(0, -35.257566, 0)),  # 25
    Part.LineSegment(Vector(0, -35.257566, 0), Vector(2.861122, -38.052915, 0)),  # 26
    Part.LineSegment(Vector(2.861122, -38.052915, 0), Vector(2.661176, -38.257566, 0)),  # 27
    Part.LineSegment(Vector(2.661176, -38.257566, 0), Vector(0, -35.657566, 0)),  # 28
    Part.LineSegment(Vector(0, -35.657566, 0), Vector(-4, -35.657566, 0)),  # 29
    Part.LineSegment(Vector(25.55, -35.657566, 0), Vector(25.55, -35.257566, 0)),  # 30
    Part.LineSegment(Vector(25.55, -35.257566, 0), Vector(29.55, -35.257566, 0)),  # 31
    Part.LineSegment(Vector(29.55, -35.257566, 0), Vector(32.411122, -38.052915, 0)),  # 32
    Part.LineSegment(Vector(32.411122, -38.052915, 0), Vector(32.211176, -38.257566, 0)),  # 33
    Part.LineSegment(Vector(32.211176, -38.257566, 0), Vector(29.55, -35.657566, 0)),  # 34
    Part.LineSegment(Vector(29.55, -35.657566, 0), Vector(25.55, -35.657566, 0)),  # 35
], False)
sketch10.addConstraint([
    Sketcher.Constraint("Coincident", 0, 2, 1, 1),
    Sketcher.Constraint("Coincident", 1, 2, 2, 1),
    Sketcher.Constraint("Coincident", 2, 2, 3, 1),
    Sketcher.Constraint("Coincident", 3, 2, 4, 1),
    Sketcher.Constraint("Coincident", 4, 2, 5, 1),
    Sketcher.Constraint("Coincident", 5, 2, 0, 1),
    Sketcher.Constraint("Coincident", 6, 2, 7, 1),
    Sketcher.Constraint("Coincident", 7, 2, 8, 1),
    Sketcher.Constraint("Coincident", 8, 2, 9, 1),
    Sketcher.Constraint("Coincident", 9, 2, 10, 1),
    Sketcher.Constraint("Coincident", 10, 2, 11, 1),
    Sketcher.Constraint("Coincident", 11, 2, 6, 1),
    Sketcher.Constraint("Coincident", 12, 2, 13, 1),
    Sketcher.Constraint("Coincident", 13, 2, 14, 1),
    Sketcher.Constraint("Coincident", 14, 2, 15, 1),
    Sketcher.Constraint("Coincident", 15, 2, 16, 1),
    Sketcher.Constraint("Coincident", 16, 2, 17, 1),
    Sketcher.Constraint("Coincident", 17, 2, 12, 1),
    Sketcher.Constraint("Coincident", 18, 2, 19, 1),
    Sketcher.Constraint("Coincident", 19, 2, 20, 1),
    Sketcher.Constraint("Coincident", 20, 2, 21, 1),
    Sketcher.Constraint("Coincident", 21, 2, 22, 1),
    Sketcher.Constraint("Coincident", 22, 2, 23, 1),
    Sketcher.Constraint("Coincident", 23, 2, 18, 1),
    Sketcher.Constraint("Coincident", 24, 2, 25, 1),
    Sketcher.Constraint("Coincident", 25, 2, 26, 1),
    Sketcher.Constraint("Coincident", 26, 2, 27, 1),
    Sketcher.Constraint("Coincident", 27, 2, 28, 1),
    Sketcher.Constraint("Coincident", 28, 2, 29, 1),
    Sketcher.Constraint("Coincident", 29, 2, 24, 1),
    Sketcher.Constraint("Coincident", 30, 2, 31, 1),
    Sketcher.Constraint("Coincident", 31, 2, 32, 1),
    Sketcher.Constraint("Coincident", 32, 2, 33, 1),
    Sketcher.Constraint("Coincident", 33, 2, 34, 1),
    Sketcher.Constraint("Coincident", 34, 2, 35, 1),
    Sketcher.Constraint("Coincident", 35, 2, 30, 1),
    Sketcher.Constraint("Horizontal", 1),
    Sketcher.Constraint("Vertical", 2),
    Sketcher.Constraint("Horizontal", 3),
    Sketcher.Constraint("Horizontal", 7),
    Sketcher.Constraint("Vertical", 8),
    Sketcher.Constraint("Horizontal", 9),
    Sketcher.Constraint("Horizontal", 12),
    Sketcher.Constraint("Vertical", 13),
    Sketcher.Constraint("Horizontal", 14),
    Sketcher.Constraint("Vertical", 18),
    Sketcher.Constraint("Horizontal", 19),
    Sketcher.Constraint("Horizontal", 23),
    Sketcher.Constraint("Vertical", 24),
    Sketcher.Constraint("Horizontal", 25),
    Sketcher.Constraint("Horizontal", 29),
    Sketcher.Constraint("Vertical", 30),
    Sketcher.Constraint("Horizontal", 31),
    Sketcher.Constraint("Horizontal", 35),
    Sketcher.Constraint("Symmetric", 3, 2, 14, 2, -2),
    Sketcher.Constraint("Symmetric", 0, 2, 17, 2, -2),
    Sketcher.Constraint("Symmetric", 19, 2, 31, 2, -2),
    Sketcher.Constraint("Symmetric", 22, 2, 34, 2, -2),
    Sketcher.Constraint("PointOnObject", 6, 2, -2),
    Sketcher.Constraint("PointOnObject", 9, 2, -2),
    Sketcher.Constraint("PointOnObject", 25, 2, -2),
    Sketcher.Constraint("PointOnObject", 28, 2, -2),
    Sketcher.Constraint("Parallel", 0, 4),
    Sketcher.Constraint("Perpendicular", 4, 5),
    Sketcher.Constraint("Perpendicular", 5, 6),
    Sketcher.Constraint("Parallel", 6, 10),
    Sketcher.Constraint("Perpendicular", 10, 11),
    Sketcher.Constraint("Perpendicular", 11, 15),
    Sketcher.Constraint("Perpendicular", 15, 16),
    Sketcher.Constraint("Perpendicular", 16, 17),
    Sketcher.Constraint("Perpendicular", 20, 21),
    Sketcher.Constraint("Perpendicular", 21, 22),
    Sketcher.Constraint("Parallel", 22, 26),
    Sketcher.Constraint("Perpendicular", 26, 27),
    Sketcher.Constraint("Perpendicular", 27, 28),
    Sketcher.Constraint("Parallel", 28, 32),
    Sketcher.Constraint("Perpendicular", 32, 33),
    Sketcher.Constraint("Perpendicular", 33, 34),
    Sketcher.Constraint("Horizontal", 1, 2, 6, 2),
    Sketcher.Constraint("Horizontal", 3, 2, 8, 2),
    Sketcher.Constraint("Horizontal", 4, 2, 10, 2),
    Sketcher.Constraint("Horizontal", 5, 2, 11, 2),
    Sketcher.Constraint("Horizontal", 10, 2, 15, 2),
    Sketcher.Constraint("Horizontal", 19, 2, 24, 2),
    Sketcher.Constraint("Horizontal", 20, 2, 26, 2),
    Sketcher.Constraint("Horizontal", 21, 2, 27, 2),
    Sketcher.Constraint("Horizontal", 23, 2, 28, 2),
    Sketcher.Constraint("Horizontal", 26, 2, 32, 2),
    Sketcher.Constraint("Vertical", 17, 2, 19, 2),
    Sketcher.Constraint("Equal", 3, 7),
    Sketcher.Constraint("Equal", 9, 12),
    Sketcher.Constraint("Equal", 14, 19),
    Sketcher.Constraint("Equal", 23, 25),
    Sketcher.Constraint("Equal", 29, 31),
    Sketcher.Constraint("Equal", 13, 18),
    Sketcher.Constraint("Equal", 17, 20),
    Sketcher.Constraint("DistanceX", 1, 1, 1, 2, 4.0),
    Sketcher.Constraint("Distance", 0, 4.0),
    Sketcher.Constraint("DistanceY", 2, 2, 2, 1, 0.4),
    Sketcher.Constraint("DistanceY", 3, 2, 5, 2, 3.0),
    Sketcher.Constraint("DistanceY", 21, 2, 19, 2, 3.0),
    Sketcher.Constraint("DistanceY", 16, 2, 18, 2, 21.1),
    Sketcher.Constraint("DistanceX", -1, 1, 0, 2, 29.55),
    Sketcher.Constraint("DistanceY", 0, 2, -1, 1, 58.957566),
])
pad4 = doc.addObject("PartDesign::Pad", "Pad003")
body2.addObject(pad4)
pad4.Profile = sketch10
pad4.Length = 3.5
pad4.Reversed = True
body3 = doc.addObject("PartDesign::Body", "Body002")

# Sketch on XY plane
sketch11 = doc.addObject("Sketcher::SketchObject", "Sketch010")
body3.addObject(sketch11)
sketch11.AttachmentSupport = (doc.getObject("XY_Plane002"), [""])
sketch11.MapMode = "FlatFace"
sketch11.addGeometry([
    Part.LineSegment(Vector(34.9, -67.099814, 0), Vector(-34.9, -67.099814, 0)),  # 0
    Part.LineSegment(Vector(-34.9, -67.099814, 0), Vector(-34.9, -89.899814, 0)),  # 1
    Part.LineSegment(Vector(-34.9, -89.899814, 0), Vector(34.9, -89.899814, 0)),  # 2
    Part.LineSegment(Vector(34.9, -89.899814, 0), Vector(34.9, -86.499814, 0)),  # 3
    Part.LineSegment(Vector(34.9, -86.499814, 0), Vector(40, -83.499814, 0)),  # 4
    Part.LineSegment(Vector(40, -83.499814, 0), Vector(40, -73.499814, 0)),  # 5
    Part.LineSegment(Vector(40, -73.499814, 0), Vector(34.9, -70.499814, 0)),  # 6
    Part.LineSegment(Vector(34.9, -70.499814, 0), Vector(34.9, -67.099814, 0)),  # 7
], False)
sketch11.addConstraint([
    Sketcher.Constraint("Coincident", 0, 2, 1, 1),
    Sketcher.Constraint("Coincident", 1, 2, 2, 1),
    Sketcher.Constraint("Coincident", 2, 2, 3, 1),
    Sketcher.Constraint("Coincident", 3, 2, 4, 1),
    Sketcher.Constraint("Coincident", 4, 2, 5, 1),
    Sketcher.Constraint("Coincident", 5, 2, 6, 1),
    Sketcher.Constraint("Coincident", 6, 2, 7, 1),
    Sketcher.Constraint("Coincident", 7, 2, 0, 1),
    Sketcher.Constraint("Horizontal", 0),
    Sketcher.Constraint("Vertical", 1),
    Sketcher.Constraint("Horizontal", 2),
    Sketcher.Constraint("Vertical", 3),
    Sketcher.Constraint("Vertical", 5),
    Sketcher.Constraint("Vertical", 7),
    Sketcher.Constraint("Vertical", 3, 2, 6, 2),
    Sketcher.Constraint("Equal", 3, 7),
    Sketcher.Constraint("Equal", 4, 6),
    Sketcher.Constraint("DistanceY", 5, 1, 5, 2, 10.0),
    Sketcher.Constraint("DistanceX", 0, 2, 0, 1, 69.8),
    Sketcher.Constraint("DistanceY", 1, 2, 1, 1, 22.8),
    Sketcher.Constraint("DistanceY", 3, 1, 3, 2, 3.4),
    Sketcher.Constraint("DistanceX", -1, 1, 4, 2, 40.0),
    Sketcher.Constraint("DistanceX", 0, 2, -1, 1, 34.9),
    Sketcher.Constraint("DistanceY", 0, 2, -1, 1, 67.099814),
])
pad5 = doc.addObject("PartDesign::Pad", "Pad004")
body3.addObject(pad5)
pad5.Profile = sketch11
pad5.Length = 3.5
body4 = doc.addObject("PartDesign::Body", "Body003")

# Sketch on XY plane
sketch12 = doc.addObject("Sketcher::SketchObject", "Sketch011")
body4.addObject(sketch12)
sketch12.AttachmentSupport = (doc.getObject("XY_Plane003"), [""])
sketch12.MapMode = "FlatFace"
sketch12.addGeometry([
    Part.LineSegment(Vector(-34.170583, -94.493417, 0), Vector(-34.170583, -117.293417, 0)),
    Part.LineSegment(Vector(-34.170583, -117.293417, 0), Vector(35.629417, -117.293417, 0)),
    Part.LineSegment(Vector(35.629417, -117.293417, 0), Vector(35.629417, -94.493417, 0)),
    Part.LineSegment(Vector(35.629417, -94.493417, 0), Vector(-34.170583, -94.493417, 0)),
], False)
sketch12.addConstraint([
    Sketcher.Constraint("Coincident", 0, 2, 1, 1),
    Sketcher.Constraint("Coincident", 1, 2, 2, 1),
    Sketcher.Constraint("Coincident", 2, 2, 3, 1),
    Sketcher.Constraint("Coincident", 3, 2, 0, 1),
    Sketcher.Constraint("Vertical", 0),
    Sketcher.Constraint("Horizontal", 1),
    Sketcher.Constraint("Vertical", 2),
    Sketcher.Constraint("Horizontal", 3),
    Sketcher.Constraint("DistanceX", 1, 1, 1, 2, 69.8),
    Sketcher.Constraint("DistanceY", 0, 2, 0, 1, 22.8),
    Sketcher.Constraint("DistanceX", 0, 2, -1, 1, 34.170583),
    Sketcher.Constraint("DistanceY", 0, 2, -1, 1, 117.293417),
])
pad6 = doc.addObject("PartDesign::Pad", "Pad005")
body4.addObject(pad6)
pad6.Profile = sketch12
pad6.Length = 3.5
body5 = doc.addObject("PartDesign::Body", "Body004")

# Sketch on YZ plane
sketch13 = doc.addObject("Sketcher::SketchObject", "Sketch012")
body5.addObject(sketch13)
sketch13.AttachmentSupport = (doc.getObject("YZ_Plane004"), [""])
sketch13.MapMode = "FlatFace"
sketch13.addGeometry([
    Part.LineSegment(Vector(50.205389, 0, 0), Vector(44.205389, 0, 0)),
    Part.ArcOfCircle(Part.Circle(Vector(50.205389, 8, 0), Vector(0, 0, 1), 10), math.radians(-126.869898), math.radians(-90)),
    Part.LineSegment(Vector(50.205389, -2, 0), Vector(50.205389, 0, 0)),
], False)
sketch13.addGeometry(Part.LineSegment(Vector(50.205389, 8, 0), Vector(50.205389, -2, 0)), True)  # axis
sketch13.addConstraint([
    Sketcher.Constraint("Coincident", 0, 2, 1, 1),
    Sketcher.Constraint("Coincident", 1, 2, 2, 1),
    Sketcher.Constraint("Coincident", 2, 2, 0, 1),
    Sketcher.Constraint("Horizontal", 0),
    Sketcher.Constraint("Vertical", 2),
    Sketcher.Constraint("Vertical", 3),
    Sketcher.Constraint("Coincident", 3, 1, 1, 3),
    Sketcher.Constraint("Coincident", 3, 2, 1, 2),
    Sketcher.Constraint("PointOnObject", 0, 2, -1),
    Sketcher.Constraint("Radius", 1, 10.0),
    Sketcher.Constraint("DistanceX", 0, 2, 0, 1, 6.0),
    Sketcher.Constraint("DistanceX", -1, 1, 1, 3, 50.205389),
])
revolution = doc.addObject("PartDesign::Revolution", "Revolution")
body5.addObject(revolution)
revolution.Profile = sketch13
revolution.ReferenceAxis = (sketch13, ["Axis0"])
revolution.Angle = 360

doc.recompute()
